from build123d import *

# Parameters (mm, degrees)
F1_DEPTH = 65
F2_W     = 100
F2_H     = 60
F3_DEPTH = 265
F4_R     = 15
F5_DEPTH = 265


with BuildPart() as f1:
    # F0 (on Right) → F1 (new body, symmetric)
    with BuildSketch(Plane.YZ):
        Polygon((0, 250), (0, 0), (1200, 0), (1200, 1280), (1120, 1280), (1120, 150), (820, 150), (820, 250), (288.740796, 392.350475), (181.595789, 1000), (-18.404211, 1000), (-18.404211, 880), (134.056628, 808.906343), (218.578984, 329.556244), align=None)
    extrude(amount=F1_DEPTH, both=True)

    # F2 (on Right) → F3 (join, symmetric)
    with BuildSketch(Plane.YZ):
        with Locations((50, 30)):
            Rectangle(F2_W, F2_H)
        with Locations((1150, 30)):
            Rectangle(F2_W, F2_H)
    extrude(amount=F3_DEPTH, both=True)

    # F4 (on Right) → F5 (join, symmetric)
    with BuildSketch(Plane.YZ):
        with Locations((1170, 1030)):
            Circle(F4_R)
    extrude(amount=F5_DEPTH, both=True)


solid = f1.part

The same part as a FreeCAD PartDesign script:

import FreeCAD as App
import Part
import Sketcher
from FreeCAD import Vector
Q = App.Units.Quantity

doc = App.newDocument("Part")
body = doc.addObject("PartDesign::Body", "Body")

# Sketch on YZ plane
sketch1 = body.newObject("Sketcher::SketchObject", "Sketch")
sketch1.AttachmentSupport = (doc.getObject("YZ_Plane"), [""])
sketch1.MapMode = "FlatFace"
sketch1.addGeometry([
    Part.LineSegment(Vector(0, 250, 0), Vector(0, 0, 0)),  # 0
    Part.LineSegment(Vector(0, 0, 0), Vector(1200, 0, 0)),  # 1
    Part.LineSegment(Vector(1200, 0, 0), Vector(1200, 1280, 0)),  # 2
    Part.LineSegment(Vector(1200, 1280, 0), Vector(1120, 1280, 0)),  # 3
    Part.LineSegment(Vector(1120, 1280, 0), Vector(1120, 150, 0)),  # 4
    Part.LineSegment(Vector(1120, 150, 0), Vector(820, 150, 0)),  # 5
    Part.LineSegment(Vector(820, 150, 0), Vector(820, 250, 0)),  # 6
    Part.LineSegment(Vector(820, 250, 0), Vector(289, 392, 0)),  # 7
    Part.LineSegment(Vector(289, 392, 0), Vector(182, 1000, 0)),  # 8
    Part.LineSegment(Vector(182, 1000, 0), Vector(-18, 1000, 0)),  # 9
    Part.LineSegment(Vector(-18, 1000, 0), Vector(-18, 880, 0)),  # 10
    Part.LineSegment(Vector(-18, 880, 0), Vector(134, 809, 0)),  # 11
    Part.LineSegment(Vector(134, 809, 0), Vector(219, 330, 0)),  # 12
    Part.LineSegment(Vector(219, 330, 0), Vector(0, 250, 0)),  # 13
], False)
sketch1.addConstraint([
    Sketcher.Constraint("Coincident", 0, 2, 1, 1),
    Sketcher.Constraint("Coincident", 1, 2, 2, 1),
    Sketcher.Constraint("Coincident", 2, 2, 3, 1),
    Sketcher.Constraint("Coincident", 3, 2, 4, 1),
    Sketcher.Constraint("Coincident", 4, 2, 5, 1),
    Sketcher.Constraint("Coincident", 5, 2, 6, 1),
    Sketcher.Constraint("Coincident", 6, 2, 7, 1),
    Sketcher.Constraint("Coincident", 7, 2, 8, 1),
    Sketcher.Constraint("Coincident", 8, 2, 9, 1),
    Sketcher.Constraint("Coincident", 9, 2, 10, 1),
    Sketcher.Constraint("Coincident", 10, 2, 11, 1),
    Sketcher.Constraint("Coincident", 11, 2, 12, 1),
    Sketcher.Constraint("Coincident", 12, 2, 13, 1),
    Sketcher.Constraint("Coincident", 13, 2, 0, 1),
    Sketcher.Constraint("Vertical", 0),
    Sketcher.Constraint("Horizontal", 1),
    Sketcher.Constraint("Vertical", 2),
    Sketcher.Constraint("Horizontal", 3),
    Sketcher.Constraint("Vertical", 4),
    Sketcher.Constraint("Horizontal", 5),
    Sketcher.Constraint("Vertical", 6),
    Sketcher.Constraint("Horizontal", 9),
    Sketcher.Constraint("Vertical", 10),
    Sketcher.Constraint("Coincident", 0, 2, -1, 1),
    Sketcher.Constraint("Parallel", 8, 12),
    Sketcher.Constraint("Horizontal", 6, 2, 13, 2),
    Sketcher.Constraint("DistanceX", 1, 1, 1, 2, Q("1200 mm")),
    Sketcher.Constraint("DistanceX", 3, 2, 3, 1, Q("80 mm")),
    Sketcher.Constraint("DistanceX", 5, 2, 5, 1, Q("300 mm")),
    Sketcher.Constraint("DistanceX", 9, 2, 9, 1, Q("200 mm")),
    Sketcher.Constraint("DistanceY", 0, 2, 0, 1, Q("250 mm")),
    Sketcher.Constraint("DistanceY", 2, 1, 2, 2, Q("1280 mm")),
    Sketcher.Constraint("DistanceY", 4, 2, 4, 1, Q("1130 mm")),
    Sketcher.Constraint("DistanceY", 10, 2, 10, 1, Q("120 mm")),
    Sketcher.Constraint("Angle", 7, Q("165 deg")),
    Sketcher.Constraint("Angle", 8, Q("100 deg")),
    Sketcher.Constraint("Angle", 11, Q("-25 deg")),
    Sketcher.Constraint("Angle", 13, Q("-160 deg")),
    Sketcher.Constraint("Distance", 7, Q("550 mm")),
    Sketcher.Constraint("DistanceY", -1, 1, 8, 2, Q("1000 mm")),
    Sketcher.Constraint("DistanceY", 12, 2, 11, 2, Q("479.350099 mm")),
])
pad1 = body.newObject("PartDesign::Pad", "Pad")
pad1.Profile = sketch1
pad1.Length = 130
pad1.Midplane = True

# Sketch on YZ plane
sketch2 = body.newObject("Sketcher::SketchObject", "Sketch001")
sketch2.AttachmentSupport = (doc.getObject("YZ_Plane"), [""])
sketch2.MapMode = "FlatFace"
sketch2.addGeometry([
    Part.LineSegment(Vector(0, 60, 0), Vector(0, 0, 0)),  # 0
    Part.LineSegment(Vector(0, 0, 0), Vector(100, 0, 0)),  # 1
    Part.LineSegment(Vector(100, 0, 0), Vector(100, 60, 0)),  # 2
    Part.LineSegment(Vector(100, 60, 0), Vector(0, 60, 0)),  # 3
    Part.LineSegment(Vector(1100, 60, 0), Vector(1100, 0, 0)),  # 4
    Part.LineSegment(Vector(1100, 0, 0), Vector(1200, 0, 0)),  # 5
    Part.LineSegment(Vector(1200, 0, 0), Vector(1200, 60, 0)),  # 6
    Part.LineSegment(Vector(1200, 60, 0), Vector(1100, 60, 0)),  # 7
], False)
sketch2.addConstraint([
    Sketcher.Constraint("Coincident", 0, 2, 1, 1),
    Sketcher.Constraint("Coincident", 1, 2, 2, 1),
    Sketcher.Constraint("Coincident", 2, 2, 3, 1),
    Sketcher.Constraint("Coincident", 3, 2, 0, 1),
    Sketcher.Constraint("Coincident", 4, 2, 5, 1),
    Sketcher.Constraint("Coincident", 5, 2, 6, 1),
    Sketcher.Constraint("Coincident", 6, 2, 7, 1),
    Sketcher.Constraint("Coincident", 7, 2, 4, 1),
    Sketcher.Constraint("Vertical", 0),
    Sketcher.Constraint("Horizontal", 1),
    Sketcher.Constraint("Vertical", 2),
    Sketcher.Constraint("Horizontal", 3),
    Sketcher.Constraint("Vertical", 4),
    Sketcher.Constraint("Horizontal", 5),
    Sketcher.Constraint("Vertical", 6),
    Sketcher.Constraint("Horizontal", 7),
    Sketcher.Constraint("Coincident", 0, 2, -1, 1),
    Sketcher.Constraint("PointOnObject", 4, 2, -1),
    Sketcher.Constraint("Horizontal", 3, 2, 6, 2),
    Sketcher.Constraint("Equal", 3, 5),
    Sketcher.Constraint("DistanceX", 1, 1, 1, 2, Q("100 mm")),
    Sketcher.Constraint("DistanceY", 0, 2, 0, 1, Q("60 mm")),
    Sketcher.Constraint("DistanceX", -1, 1, 4, 2, Q("1100 mm")),
])
pad2 = body.newObject("PartDesign::Pad", "Pad001")
pad2.Profile = sketch2
pad2.Length = 530
pad2.Midplane = True

# Sketch on YZ plane
sketch3 = body.newObject("Sketcher::SketchObject", "Sketch002")
sketch3.AttachmentSupport = (doc.getObject("YZ_Plane"), [""])
sketch3.MapMode = "FlatFace"
sketch3.addGeometry(Part.Circle(Vector(1170, 1030, 0), Vector(0, 0, 1), 15), False)
sketch3.addConstraint([
    Sketcher.Constraint("Diameter", 0, Q("30 mm")),
    Sketcher.Constraint("DistanceX", -1, 1, 0, 3, Q("1170 mm")),
    Sketcher.Constraint("DistanceY", -1, 1, 0, 3, Q("1030 mm")),
])
pad3 = body.newObject("PartDesign::Pad", "Pad002")
pad3.Profile = sketch3
pad3.Length = 530
pad3.Midplane = True

doc.recompute()
